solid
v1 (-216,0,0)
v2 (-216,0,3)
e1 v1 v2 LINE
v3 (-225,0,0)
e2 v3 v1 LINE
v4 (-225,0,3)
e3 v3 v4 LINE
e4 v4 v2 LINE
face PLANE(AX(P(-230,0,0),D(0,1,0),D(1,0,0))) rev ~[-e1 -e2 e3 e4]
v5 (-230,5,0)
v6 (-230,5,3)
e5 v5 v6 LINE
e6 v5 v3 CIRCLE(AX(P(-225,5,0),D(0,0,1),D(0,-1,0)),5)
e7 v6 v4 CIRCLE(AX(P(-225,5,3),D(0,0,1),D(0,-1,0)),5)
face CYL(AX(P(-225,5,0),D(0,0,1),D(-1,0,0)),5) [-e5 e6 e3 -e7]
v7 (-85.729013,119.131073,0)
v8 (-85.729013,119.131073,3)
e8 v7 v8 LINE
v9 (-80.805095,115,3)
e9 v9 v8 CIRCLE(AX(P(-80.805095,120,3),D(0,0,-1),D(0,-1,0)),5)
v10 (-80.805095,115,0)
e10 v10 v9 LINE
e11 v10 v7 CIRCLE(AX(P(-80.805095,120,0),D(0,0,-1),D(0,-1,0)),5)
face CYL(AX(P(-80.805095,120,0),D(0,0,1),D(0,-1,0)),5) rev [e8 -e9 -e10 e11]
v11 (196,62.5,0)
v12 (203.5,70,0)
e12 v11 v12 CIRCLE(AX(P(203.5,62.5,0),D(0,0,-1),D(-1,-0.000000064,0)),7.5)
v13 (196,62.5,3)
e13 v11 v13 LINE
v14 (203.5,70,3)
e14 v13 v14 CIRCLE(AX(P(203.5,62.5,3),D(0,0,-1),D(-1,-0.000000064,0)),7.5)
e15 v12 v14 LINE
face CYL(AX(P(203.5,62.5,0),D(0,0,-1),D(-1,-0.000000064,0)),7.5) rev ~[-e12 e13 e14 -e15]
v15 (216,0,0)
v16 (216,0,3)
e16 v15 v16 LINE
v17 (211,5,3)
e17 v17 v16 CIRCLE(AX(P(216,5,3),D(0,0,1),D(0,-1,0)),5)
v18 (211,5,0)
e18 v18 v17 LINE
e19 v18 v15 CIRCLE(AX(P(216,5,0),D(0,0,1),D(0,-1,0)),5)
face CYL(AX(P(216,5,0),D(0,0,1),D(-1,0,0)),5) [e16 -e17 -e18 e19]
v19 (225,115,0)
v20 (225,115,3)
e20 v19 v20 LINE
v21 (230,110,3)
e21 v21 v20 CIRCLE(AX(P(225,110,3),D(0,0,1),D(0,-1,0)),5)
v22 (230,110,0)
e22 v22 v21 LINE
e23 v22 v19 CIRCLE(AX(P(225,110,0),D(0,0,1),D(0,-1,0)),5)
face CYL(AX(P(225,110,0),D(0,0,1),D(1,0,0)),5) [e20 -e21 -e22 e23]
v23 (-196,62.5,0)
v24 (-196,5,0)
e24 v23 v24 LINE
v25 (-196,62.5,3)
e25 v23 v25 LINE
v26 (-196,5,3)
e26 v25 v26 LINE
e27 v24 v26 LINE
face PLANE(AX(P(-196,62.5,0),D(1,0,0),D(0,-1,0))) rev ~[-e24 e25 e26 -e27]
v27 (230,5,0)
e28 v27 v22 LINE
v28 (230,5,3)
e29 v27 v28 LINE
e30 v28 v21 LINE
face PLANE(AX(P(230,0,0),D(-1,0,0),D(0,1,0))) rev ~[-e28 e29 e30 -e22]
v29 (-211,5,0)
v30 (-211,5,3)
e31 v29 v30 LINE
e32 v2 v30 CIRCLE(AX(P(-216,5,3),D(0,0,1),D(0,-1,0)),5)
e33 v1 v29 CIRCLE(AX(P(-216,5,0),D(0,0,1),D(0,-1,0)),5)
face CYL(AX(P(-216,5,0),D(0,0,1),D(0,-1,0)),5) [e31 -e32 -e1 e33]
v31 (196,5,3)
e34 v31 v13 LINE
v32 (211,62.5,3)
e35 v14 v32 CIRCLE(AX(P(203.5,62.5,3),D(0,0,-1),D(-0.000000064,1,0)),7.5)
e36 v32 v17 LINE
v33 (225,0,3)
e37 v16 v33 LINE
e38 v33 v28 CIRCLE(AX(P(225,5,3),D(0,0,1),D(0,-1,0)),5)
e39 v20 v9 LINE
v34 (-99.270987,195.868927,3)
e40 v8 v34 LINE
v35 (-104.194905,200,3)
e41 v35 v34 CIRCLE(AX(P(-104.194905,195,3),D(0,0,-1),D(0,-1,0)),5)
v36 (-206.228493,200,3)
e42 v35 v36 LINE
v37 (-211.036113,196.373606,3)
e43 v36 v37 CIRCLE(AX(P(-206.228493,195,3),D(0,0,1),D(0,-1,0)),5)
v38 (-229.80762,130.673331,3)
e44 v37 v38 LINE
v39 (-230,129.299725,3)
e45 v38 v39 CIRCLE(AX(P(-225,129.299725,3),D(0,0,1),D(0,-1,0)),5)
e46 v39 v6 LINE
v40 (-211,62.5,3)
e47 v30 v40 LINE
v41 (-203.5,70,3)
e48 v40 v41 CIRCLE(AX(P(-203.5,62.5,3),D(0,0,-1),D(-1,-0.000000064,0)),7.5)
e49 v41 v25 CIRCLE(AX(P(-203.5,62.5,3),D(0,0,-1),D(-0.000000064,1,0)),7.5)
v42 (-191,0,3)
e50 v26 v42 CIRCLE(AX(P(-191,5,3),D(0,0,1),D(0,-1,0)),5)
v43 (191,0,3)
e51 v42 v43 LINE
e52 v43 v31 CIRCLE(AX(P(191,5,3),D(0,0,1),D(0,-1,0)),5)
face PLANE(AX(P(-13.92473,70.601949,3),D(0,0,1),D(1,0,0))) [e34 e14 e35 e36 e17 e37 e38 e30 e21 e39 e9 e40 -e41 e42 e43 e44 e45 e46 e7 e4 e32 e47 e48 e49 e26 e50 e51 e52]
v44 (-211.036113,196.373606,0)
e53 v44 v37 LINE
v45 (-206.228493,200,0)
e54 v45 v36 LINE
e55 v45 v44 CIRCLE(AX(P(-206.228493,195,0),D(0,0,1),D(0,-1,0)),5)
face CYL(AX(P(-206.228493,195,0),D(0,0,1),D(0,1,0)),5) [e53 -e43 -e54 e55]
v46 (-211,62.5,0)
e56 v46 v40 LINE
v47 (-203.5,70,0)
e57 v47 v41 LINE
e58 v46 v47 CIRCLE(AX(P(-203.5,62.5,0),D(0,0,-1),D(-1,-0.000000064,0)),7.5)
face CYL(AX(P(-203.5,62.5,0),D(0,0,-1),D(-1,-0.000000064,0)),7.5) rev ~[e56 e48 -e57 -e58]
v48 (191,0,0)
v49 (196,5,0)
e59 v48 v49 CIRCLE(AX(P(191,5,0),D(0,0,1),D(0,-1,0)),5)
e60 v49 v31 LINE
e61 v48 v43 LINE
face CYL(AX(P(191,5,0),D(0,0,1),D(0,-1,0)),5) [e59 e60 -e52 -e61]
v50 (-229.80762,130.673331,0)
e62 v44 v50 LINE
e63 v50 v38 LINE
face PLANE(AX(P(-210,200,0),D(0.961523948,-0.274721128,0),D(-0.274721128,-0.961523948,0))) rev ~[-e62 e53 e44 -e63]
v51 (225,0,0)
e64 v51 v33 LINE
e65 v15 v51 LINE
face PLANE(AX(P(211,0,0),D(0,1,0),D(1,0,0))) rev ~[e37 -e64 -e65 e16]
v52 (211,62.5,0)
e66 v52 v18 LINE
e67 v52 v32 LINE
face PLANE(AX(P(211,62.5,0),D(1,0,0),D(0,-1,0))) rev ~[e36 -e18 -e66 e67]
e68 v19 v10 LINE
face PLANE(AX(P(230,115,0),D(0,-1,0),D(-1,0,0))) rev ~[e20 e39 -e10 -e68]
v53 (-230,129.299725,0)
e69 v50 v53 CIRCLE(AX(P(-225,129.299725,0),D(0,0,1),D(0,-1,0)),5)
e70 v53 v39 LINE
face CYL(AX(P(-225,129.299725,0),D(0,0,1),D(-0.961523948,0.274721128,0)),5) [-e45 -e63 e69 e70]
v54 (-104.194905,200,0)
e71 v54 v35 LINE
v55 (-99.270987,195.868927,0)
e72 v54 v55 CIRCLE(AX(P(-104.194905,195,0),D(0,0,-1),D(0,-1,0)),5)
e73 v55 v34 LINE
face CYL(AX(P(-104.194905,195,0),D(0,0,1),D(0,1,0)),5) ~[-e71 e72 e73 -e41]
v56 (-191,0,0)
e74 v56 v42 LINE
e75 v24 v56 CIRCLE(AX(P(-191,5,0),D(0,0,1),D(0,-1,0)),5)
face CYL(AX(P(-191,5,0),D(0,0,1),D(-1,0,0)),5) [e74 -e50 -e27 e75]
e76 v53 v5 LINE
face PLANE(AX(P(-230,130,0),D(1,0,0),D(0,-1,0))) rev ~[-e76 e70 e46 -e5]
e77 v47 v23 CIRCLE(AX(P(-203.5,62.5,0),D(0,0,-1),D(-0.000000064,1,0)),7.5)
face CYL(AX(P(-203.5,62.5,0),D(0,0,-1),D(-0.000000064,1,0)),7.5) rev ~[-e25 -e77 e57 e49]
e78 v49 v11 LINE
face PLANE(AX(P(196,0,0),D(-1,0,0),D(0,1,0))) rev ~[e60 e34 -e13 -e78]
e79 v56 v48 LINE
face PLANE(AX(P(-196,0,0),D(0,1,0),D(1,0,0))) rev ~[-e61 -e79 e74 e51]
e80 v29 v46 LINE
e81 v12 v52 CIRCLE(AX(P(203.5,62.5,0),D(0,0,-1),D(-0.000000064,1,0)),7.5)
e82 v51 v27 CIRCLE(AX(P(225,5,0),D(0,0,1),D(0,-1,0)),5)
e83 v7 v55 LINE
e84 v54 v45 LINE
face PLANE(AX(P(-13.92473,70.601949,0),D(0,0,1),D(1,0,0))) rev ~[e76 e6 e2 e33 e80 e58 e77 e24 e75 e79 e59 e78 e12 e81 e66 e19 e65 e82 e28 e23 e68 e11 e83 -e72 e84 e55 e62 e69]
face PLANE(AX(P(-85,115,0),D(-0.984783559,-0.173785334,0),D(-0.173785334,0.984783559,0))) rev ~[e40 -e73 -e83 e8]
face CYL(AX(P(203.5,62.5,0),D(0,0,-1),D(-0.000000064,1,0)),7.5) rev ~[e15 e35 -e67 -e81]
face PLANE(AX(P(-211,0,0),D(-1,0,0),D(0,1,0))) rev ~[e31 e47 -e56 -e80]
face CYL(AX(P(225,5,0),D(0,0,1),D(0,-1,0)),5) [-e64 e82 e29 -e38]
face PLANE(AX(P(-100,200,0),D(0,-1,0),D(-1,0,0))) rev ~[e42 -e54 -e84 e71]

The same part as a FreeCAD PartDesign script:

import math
import FreeCAD as App
import Part
import Sketcher
from FreeCAD import Vector


def edges_at(feature, points):
    """Names of the edges that pass closest to the given points."""
    edges = feature.Shape.Edges
    near = lambda p: min(range(len(edges)), key=lambda i: edges[i].distToShape(Part.Vertex(*p))[0])
    return sorted({f"Edge{near(p) + 1}" for p in points})

doc = App.newDocument("Part")
params = doc.addObject("Spreadsheet::Sheet", "Params")
for row, (alias, value) in enumerate([
    ("sketch1_radius", "7.5 mm"),
    ("sketch1_width", "110 mm"),
    ("sketch1_width2", "19 mm"),
    ("sketch1_width3", "392 mm"),
    ("sketch1_width4", "315 mm"),
    ("pad1_length", "3 mm"),
    ("fillet_radius", "5 mm"),
], start=1):
    params.set(f"A{row}", alias)
    params.set(f"B{row}", "=" + value)
    params.setAlias(f"B{row}", alias)

body = doc.addObject("PartDesign::Body", "Body")

sketch1 = doc.addObject("Sketcher::SketchObject", "Sketch")
body.addObject(sketch1)
sketch1.AttachmentSupport = (doc.XY_Plane, [""])
sketch1.MapMode = "FlatFace"
sketch1.addGeometry([
    Part.LineSegment(Vector(-100, 200, 0), Vector(-210, 200, 0)),
    Part.LineSegment(Vector(-210, 200, 0), Vector(-230, 130, 0)),
    Part.LineSegment(Vector(-230, 130, 0), Vector(-230, 0, 0)),
    Part.LineSegment(Vector(-230, 0, 0), Vector(-211, 0, 0)),
    Part.LineSegment(Vector(-211, 0, 0), Vector(-211, 62, 0)),
    Part.ArcOfCircle(Part.Circle(Vector(-204, 63, 0), Vector(0, 0, 1), 7), math.radians(90), math.radians(180)),
    Part.ArcOfCircle(Part.Circle(Vector(-203, 63, 0), Vector(0, 0, 1), 7), math.radians(0), math.radians(90)),
    Part.LineSegment(Vector(-196, 62, 0), Vector(-196, 0, 0)),
    Part.LineSegment(Vector(-196, 0, 0), Vector(196, 0, 0)),
    Part.LineSegment(Vector(196, 0, 0), Vector(196, 62, 0)),
    Part.ArcOfCircle(Part.Circle(Vector(203, 63, 0), Vector(0, 0, 1), 7), math.radians(90), math.radians(180)),
    Part.ArcOfCircle(Part.Circle(Vector(204, 63, 0), Vector(0, 0, 1), 7), math.radians(0), math.radians(90)),
    Part.LineSegment(Vector(211, 62, 0), Vector(211, 0, 0)),
    Part.LineSegment(Vector(211, 0, 0), Vector(230, 0, 0)),
    Part.LineSegment(Vector(230, 0, 0), Vector(230, 115, 0)),
    Part.LineSegment(Vector(230, 115, 0), Vector(-85, 115, 0)),
    Part.LineSegment(Vector(-85, 115, 0), Vector(-100, 200, 0)),
], False)
sketch1.addConstraint([
    Sketcher.Constraint("Coincident", 0, 2, 1, 1),
    Sketcher.Constraint("Coincident", 1, 2, 2, 1),
    Sketcher.Constraint("Coincident", 2, 2, 3, 1),
    Sketcher.Constraint("Coincident", 3, 2, 4, 1),
    Sketcher.Constraint("Tangent", 4, 2, 5, 2),
    Sketcher.Constraint("Tangent", 5, 1, 6, 2),
    Sketcher.Constraint("Tangent", 6, 1, 7, 1),
    Sketcher.Constraint("Coincident", 7, 2, 8, 1),
    Sketcher.Constraint("Coincident", 8, 2, 9, 1),
    Sketcher.Constraint("Tangent", 9, 2, 10, 2),
    Sketcher.Constraint("Tangent", 10, 1, 11, 2),
    Sketcher.Constraint("Tangent", 11, 1, 12, 1),
    Sketcher.Constraint("Coincident", 12, 2, 13, 1),
    Sketcher.Constraint("Coincident", 13, 2, 14, 1),
    Sketcher.Constraint("Coincident", 14, 2, 15, 1),
    Sketcher.Constraint("Coincident", 15, 2, 16, 1),
    Sketcher.Constraint("Coincident", 16, 2, 0, 1),
    Sketcher.Constraint("Horizontal", 0),
    Sketcher.Constraint("Vertical", 2),
    Sketcher.Constraint("Horizontal", 3),
    Sketcher.Constraint("Vertical", 4),
    Sketcher.Constraint("Vertical", 7),
    Sketcher.Constraint("Horizontal", 8),
    Sketcher.Constraint("Vertical", 9),
    Sketcher.Constraint("Vertical", 12),
    Sketcher.Constraint("Horizontal", 13),
    Sketcher.Constraint("Vertical", 14),
    Sketcher.Constraint("Horizontal", 15),
    Sketcher.Constraint("Equal", 5, 6),
    Sketcher.Constraint("Equal", 6, 10),
    Sketcher.Constraint("Equal", 10, 11),
    Sketcher.Constraint("Symmetric", 7, 2, 8, 2, -1, 1),
    Sketcher.Constraint("Symmetric", 2, 2, 13, 2, -1, 1),
    Sketcher.Constraint("Symmetric", 5, 1, 10, 1, -2),
    Sketcher.Constraint("PointOnObject", 2, 2, -1),
    Sketcher.Constraint("Vertical", 6, 3, 5, 1),
    Sketcher.Constraint("Radius", 5, 7.5),
    Sketcher.Constraint("DistanceX", 0, 2, 0, 1, 110.0),
    Sketcher.Constraint("DistanceX", 3, 1, 3, 2, 19.0),
    Sketcher.Constraint("DistanceX", 8, 1, 8, 2, 392.0),
    Sketcher.Constraint("DistanceX", 15, 2, 15, 1, 315.0),
    Sketcher.Constraint("DistanceY", 2, 2, 2, 1, 130.0),
    Sketcher.Constraint("DistanceY", 14, 1, 14, 2, 115.0),
    Sketcher.Constraint("DistanceY", 4, 1, 4, 2, 62.5),
    Sketcher.Constraint("DistanceX", 0, 2, -1, 1, 210.0),
    Sketcher.Constraint("DistanceY", -1, 1, 0, 2, 200.0),
])
sketch1.setExpression("Constraints[36]", "Params.sketch1_radius")
sketch1.setExpression("Constraints[37]", "Params.sketch1_width")
sketch1.setExpression("Constraints[38]", "Params.sketch1_width2")
sketch1.setExpression("Constraints[39]", "Params.sketch1_width3")
sketch1.setExpression("Constraints[40]", "Params.sketch1_width4")
pad1 = doc.addObject("PartDesign::Pad", "Pad")
body.addObject(pad1)
pad1.Profile = sketch1
pad1.setExpression("Length", "Params.pad1_length")
doc.recompute()

fillet = doc.addObject("PartDesign::Fillet", "Fillet")
body.addObject(fillet)
fillet.Base = (pad1, edges_at(pad1, [
    (-211, 0, 1.5),
    (-196, 0, 1.5),
    (196, 0, 1.5),
    (211, 0, 1.5),
    (-230, 0, 1.5),
    (-230, 130, 1.5),
    (-210, 200, 1.5),
    (-100, 200, 1.5),
    (-85, 115, 1.5),
    (230, 115, 1.5),
    (230, 0, 1.5),
]))
fillet.setExpression("Radius", "Params.fillet_radius")

doc.recompute()
